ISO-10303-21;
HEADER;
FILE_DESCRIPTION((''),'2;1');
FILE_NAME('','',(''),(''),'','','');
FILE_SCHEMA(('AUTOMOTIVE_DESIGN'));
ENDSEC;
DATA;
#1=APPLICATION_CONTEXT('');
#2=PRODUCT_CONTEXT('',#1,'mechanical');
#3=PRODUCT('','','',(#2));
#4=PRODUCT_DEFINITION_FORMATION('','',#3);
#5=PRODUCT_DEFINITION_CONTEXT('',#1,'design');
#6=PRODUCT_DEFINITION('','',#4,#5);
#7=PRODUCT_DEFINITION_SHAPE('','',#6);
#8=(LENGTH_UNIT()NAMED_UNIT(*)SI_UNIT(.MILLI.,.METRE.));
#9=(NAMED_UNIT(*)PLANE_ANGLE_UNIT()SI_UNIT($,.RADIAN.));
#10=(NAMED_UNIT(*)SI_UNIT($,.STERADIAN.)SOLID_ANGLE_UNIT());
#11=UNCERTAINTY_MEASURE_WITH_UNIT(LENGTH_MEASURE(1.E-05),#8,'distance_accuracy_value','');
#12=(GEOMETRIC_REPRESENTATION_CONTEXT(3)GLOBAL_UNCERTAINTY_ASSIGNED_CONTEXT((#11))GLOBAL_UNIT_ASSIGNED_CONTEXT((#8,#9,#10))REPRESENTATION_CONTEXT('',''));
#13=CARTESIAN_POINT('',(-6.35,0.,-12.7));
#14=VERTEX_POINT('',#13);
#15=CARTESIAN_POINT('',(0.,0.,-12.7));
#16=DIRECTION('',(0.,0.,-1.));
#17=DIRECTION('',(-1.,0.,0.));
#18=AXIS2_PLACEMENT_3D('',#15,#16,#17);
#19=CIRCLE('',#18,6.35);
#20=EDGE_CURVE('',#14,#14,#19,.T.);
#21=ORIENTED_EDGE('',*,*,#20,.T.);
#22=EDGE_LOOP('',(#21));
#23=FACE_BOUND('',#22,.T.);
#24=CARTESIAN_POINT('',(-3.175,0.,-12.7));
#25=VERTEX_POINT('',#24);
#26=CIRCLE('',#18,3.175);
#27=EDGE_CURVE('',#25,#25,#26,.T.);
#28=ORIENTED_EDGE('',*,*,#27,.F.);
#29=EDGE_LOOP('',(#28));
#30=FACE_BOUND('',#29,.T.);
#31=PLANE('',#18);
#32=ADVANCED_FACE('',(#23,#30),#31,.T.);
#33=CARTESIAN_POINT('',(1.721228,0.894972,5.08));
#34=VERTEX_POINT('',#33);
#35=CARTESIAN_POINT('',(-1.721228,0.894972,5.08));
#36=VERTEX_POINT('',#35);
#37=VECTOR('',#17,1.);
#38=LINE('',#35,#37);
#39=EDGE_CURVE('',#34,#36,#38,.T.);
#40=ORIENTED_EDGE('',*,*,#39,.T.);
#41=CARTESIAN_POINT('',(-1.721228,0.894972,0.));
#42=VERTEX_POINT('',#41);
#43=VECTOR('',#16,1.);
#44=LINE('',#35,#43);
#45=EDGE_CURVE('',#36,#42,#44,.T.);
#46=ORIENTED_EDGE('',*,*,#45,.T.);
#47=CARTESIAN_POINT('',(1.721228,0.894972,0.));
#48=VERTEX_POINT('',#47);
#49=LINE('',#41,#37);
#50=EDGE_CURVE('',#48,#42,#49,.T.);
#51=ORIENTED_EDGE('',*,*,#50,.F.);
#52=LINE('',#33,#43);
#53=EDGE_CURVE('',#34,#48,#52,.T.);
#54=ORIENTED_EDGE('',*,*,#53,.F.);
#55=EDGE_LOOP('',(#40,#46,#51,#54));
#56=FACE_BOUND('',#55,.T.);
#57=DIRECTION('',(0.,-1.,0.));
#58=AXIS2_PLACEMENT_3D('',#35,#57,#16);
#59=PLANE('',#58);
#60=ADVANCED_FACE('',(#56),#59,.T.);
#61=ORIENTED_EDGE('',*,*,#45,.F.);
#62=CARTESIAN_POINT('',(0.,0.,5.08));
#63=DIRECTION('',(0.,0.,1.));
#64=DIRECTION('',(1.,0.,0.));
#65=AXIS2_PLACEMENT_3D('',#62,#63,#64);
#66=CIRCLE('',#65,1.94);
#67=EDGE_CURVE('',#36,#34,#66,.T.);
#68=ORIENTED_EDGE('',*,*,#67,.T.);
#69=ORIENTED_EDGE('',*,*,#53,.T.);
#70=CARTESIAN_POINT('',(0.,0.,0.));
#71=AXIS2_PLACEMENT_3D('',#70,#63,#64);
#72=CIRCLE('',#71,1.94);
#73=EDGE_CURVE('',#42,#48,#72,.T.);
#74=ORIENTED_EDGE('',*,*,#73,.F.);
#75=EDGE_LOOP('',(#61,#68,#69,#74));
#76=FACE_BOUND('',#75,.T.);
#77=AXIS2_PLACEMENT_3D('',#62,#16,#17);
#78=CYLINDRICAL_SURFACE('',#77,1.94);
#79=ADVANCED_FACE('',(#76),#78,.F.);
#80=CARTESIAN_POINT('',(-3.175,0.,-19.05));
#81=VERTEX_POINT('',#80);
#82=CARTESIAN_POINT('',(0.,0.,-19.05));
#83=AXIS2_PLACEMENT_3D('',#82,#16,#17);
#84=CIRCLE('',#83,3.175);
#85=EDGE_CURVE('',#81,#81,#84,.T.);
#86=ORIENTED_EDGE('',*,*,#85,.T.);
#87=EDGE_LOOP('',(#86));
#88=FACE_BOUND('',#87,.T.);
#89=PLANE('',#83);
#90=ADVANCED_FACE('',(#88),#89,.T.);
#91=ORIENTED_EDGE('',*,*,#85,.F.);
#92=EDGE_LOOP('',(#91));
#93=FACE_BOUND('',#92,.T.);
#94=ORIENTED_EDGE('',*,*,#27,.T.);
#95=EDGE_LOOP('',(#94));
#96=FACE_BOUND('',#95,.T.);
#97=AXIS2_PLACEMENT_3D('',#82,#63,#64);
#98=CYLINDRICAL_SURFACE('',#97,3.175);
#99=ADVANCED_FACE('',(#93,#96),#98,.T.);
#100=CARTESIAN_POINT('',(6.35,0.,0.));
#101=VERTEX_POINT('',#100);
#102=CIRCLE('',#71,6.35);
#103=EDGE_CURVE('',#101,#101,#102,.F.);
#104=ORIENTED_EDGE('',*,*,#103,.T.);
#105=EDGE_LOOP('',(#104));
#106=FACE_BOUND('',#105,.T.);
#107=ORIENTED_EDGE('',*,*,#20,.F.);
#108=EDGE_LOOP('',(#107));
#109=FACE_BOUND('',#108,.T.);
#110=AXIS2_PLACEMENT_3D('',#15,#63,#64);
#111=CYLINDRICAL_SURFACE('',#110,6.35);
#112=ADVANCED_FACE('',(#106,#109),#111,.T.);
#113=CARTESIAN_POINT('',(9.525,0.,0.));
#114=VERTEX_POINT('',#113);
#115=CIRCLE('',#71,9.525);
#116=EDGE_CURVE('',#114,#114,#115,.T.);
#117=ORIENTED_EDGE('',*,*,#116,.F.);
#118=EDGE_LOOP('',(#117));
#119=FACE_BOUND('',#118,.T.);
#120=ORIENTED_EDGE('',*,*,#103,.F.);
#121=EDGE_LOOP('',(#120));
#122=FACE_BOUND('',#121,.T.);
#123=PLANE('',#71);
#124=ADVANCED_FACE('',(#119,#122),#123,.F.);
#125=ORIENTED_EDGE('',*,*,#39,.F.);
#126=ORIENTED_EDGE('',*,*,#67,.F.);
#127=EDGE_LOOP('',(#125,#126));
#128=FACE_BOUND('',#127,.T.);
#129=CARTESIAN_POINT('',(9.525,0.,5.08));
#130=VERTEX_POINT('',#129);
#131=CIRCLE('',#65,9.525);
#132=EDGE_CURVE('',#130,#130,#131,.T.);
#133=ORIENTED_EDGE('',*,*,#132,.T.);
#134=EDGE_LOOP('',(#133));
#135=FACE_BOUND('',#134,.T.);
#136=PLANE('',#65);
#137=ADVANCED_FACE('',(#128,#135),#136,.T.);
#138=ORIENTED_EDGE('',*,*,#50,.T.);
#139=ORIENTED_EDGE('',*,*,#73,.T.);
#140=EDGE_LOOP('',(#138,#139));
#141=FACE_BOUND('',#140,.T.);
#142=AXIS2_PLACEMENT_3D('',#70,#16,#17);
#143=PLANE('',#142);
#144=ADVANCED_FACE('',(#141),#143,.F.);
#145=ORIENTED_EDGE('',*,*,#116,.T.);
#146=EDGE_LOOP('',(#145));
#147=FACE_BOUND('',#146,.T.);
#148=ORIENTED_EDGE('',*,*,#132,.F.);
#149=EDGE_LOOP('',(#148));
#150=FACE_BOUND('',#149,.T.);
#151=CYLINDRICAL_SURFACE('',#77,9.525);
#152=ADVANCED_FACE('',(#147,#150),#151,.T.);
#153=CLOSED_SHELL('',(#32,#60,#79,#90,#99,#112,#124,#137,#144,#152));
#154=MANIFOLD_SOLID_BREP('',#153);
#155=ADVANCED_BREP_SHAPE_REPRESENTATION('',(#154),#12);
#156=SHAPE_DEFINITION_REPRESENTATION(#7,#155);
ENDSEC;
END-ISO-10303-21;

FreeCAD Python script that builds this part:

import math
import FreeCAD as App
import Part
import Sketcher
from FreeCAD import Vector
Q = App.Units.Quantity

doc = App.newDocument("Part")
params = doc.addObject("Spreadsheet::Sheet", "Params")
for row, (alias, value) in enumerate([
    ("sketch1_diameter", "0.75 in"),
    ("pad1_length", "0.2 in"),
    ("sketch2_diameter", "0.5 in"),
    ("pad2_length", "0.5 in"),
    ("sketch3_diameter", "0.25 in"),
    ("pad3_length", "0.25 in"),
], start=1):
    params.set(f"A{row}", alias)
    params.set(f"B{row}", "=" + value)
    params.setAlias(f"B{row}", alias)

body = doc.addObject("PartDesign::Body", "Body")

# Sketch on XY plane
sketch1 = doc.addObject("Sketcher::SketchObject", "Sketch")
body.addObject(sketch1)
sketch1.AttachmentSupport = (doc.XY_Plane, [""])
sketch1.MapMode = "FlatFace"
sketch1.addGeometry(Part.Circle(Vector(0, 0, 0), Vector(0, 0, 1), 9.5), False)
sketch1.addGeometry(Part.ArcOfCircle(Part.Circle(Vector(0, 0, 0), Vector(0, 0, 1), 1.9), math.radians(153), math.radians(387)), False)
sketch1.addGeometry(Part.LineSegment(Vector(-1.7, 0.9, 0), Vector(1.7, 0.9, 0)), False)
sketch1.addConstraint(Sketcher.Constraint("Coincident", 1, 1, 2, 1))
sketch1.addConstraint(Sketcher.Constraint("Coincident", 2, 2, 1, 2))
sketch1.addConstraint(Sketcher.Constraint("Horizontal", 2))
sketch1.addConstraint(Sketcher.Constraint("Coincident", 0, 3, -1, 1))
sketch1.addConstraint(Sketcher.Constraint("Coincident", 1, 3, -1, 1))
sketch1.addConstraint(Sketcher.Constraint("Diameter", 0, Q("0.75 in")))
sketch1.addConstraint(Sketcher.Constraint("Radius", 1, 1.94))
sketch1.addConstraint(Sketcher.Constraint("DistanceX", 2, 1, 2, 2, 3.442456))
sketch1.setExpression("Constraints[5]", "Params.sketch1_diameter")
pad1 = doc.addObject("PartDesign::Pad", "Pad")
body.addObject(pad1)
pad1.Profile = sketch1
pad1.setExpression("Length", "Params.pad1_length")

# Sketch on XY plane
sketch2 = doc.addObject("Sketcher::SketchObject", "Sketch001")
body.addObject(sketch2)
sketch2.AttachmentSupport = (doc.XY_Plane, [""])
sketch2.MapMode = "FlatFace"
sketch2.addGeometry(Part.Circle(Vector(0, 0, 0), Vector(0, 0, 1), 6), False)
sketch2.addConstraint(Sketcher.Constraint("Coincident", 0, 3, -1, 1))
sketch2.addConstraint(Sketcher.Constraint("Diameter", 0, Q("0.5 in")))
sketch2.setExpression("Constraints[1]", "Params.sketch2_diameter")
pad2 = doc.addObject("PartDesign::Pad", "Pad001")
body.addObject(pad2)
pad2.Profile = sketch2
pad2.setExpression("Length", "Params.pad2_length")
pad2.Reversed = True

# Sketch on XY plane
sketch3 = doc.addObject("Sketcher::SketchObject", "Sketch002")
body.addObject(sketch3)
sketch3.AttachmentSupport = (doc.XY_Plane, [""])
sketch3.MapMode = "FlatFace"
sketch3.AttachmentOffset = App.Placement(Vector(0, 0, -0.5 * 25.4), App.Rotation())
sketch3.addGeometry(Part.Circle(Vector(0, 0, 0), Vector(0, 0, 1), 3.2), False)
sketch3.addConstraint(Sketcher.Constraint("Coincident", 0, 3, -1, 1))
sketch3.addConstraint(Sketcher.Constraint("Diameter", 0, Q("0.25 in")))
sketch3.setExpression("Constraints[1]", "Params.sketch3_diameter")
pad3 = doc.addObject("PartDesign::Pad", "Pad002")
body.addObject(pad3)
pad3.Profile = sketch3
pad3.setExpression("Length", "Params.pad3_length")
pad3.Reversed = True

doc.recompute()
